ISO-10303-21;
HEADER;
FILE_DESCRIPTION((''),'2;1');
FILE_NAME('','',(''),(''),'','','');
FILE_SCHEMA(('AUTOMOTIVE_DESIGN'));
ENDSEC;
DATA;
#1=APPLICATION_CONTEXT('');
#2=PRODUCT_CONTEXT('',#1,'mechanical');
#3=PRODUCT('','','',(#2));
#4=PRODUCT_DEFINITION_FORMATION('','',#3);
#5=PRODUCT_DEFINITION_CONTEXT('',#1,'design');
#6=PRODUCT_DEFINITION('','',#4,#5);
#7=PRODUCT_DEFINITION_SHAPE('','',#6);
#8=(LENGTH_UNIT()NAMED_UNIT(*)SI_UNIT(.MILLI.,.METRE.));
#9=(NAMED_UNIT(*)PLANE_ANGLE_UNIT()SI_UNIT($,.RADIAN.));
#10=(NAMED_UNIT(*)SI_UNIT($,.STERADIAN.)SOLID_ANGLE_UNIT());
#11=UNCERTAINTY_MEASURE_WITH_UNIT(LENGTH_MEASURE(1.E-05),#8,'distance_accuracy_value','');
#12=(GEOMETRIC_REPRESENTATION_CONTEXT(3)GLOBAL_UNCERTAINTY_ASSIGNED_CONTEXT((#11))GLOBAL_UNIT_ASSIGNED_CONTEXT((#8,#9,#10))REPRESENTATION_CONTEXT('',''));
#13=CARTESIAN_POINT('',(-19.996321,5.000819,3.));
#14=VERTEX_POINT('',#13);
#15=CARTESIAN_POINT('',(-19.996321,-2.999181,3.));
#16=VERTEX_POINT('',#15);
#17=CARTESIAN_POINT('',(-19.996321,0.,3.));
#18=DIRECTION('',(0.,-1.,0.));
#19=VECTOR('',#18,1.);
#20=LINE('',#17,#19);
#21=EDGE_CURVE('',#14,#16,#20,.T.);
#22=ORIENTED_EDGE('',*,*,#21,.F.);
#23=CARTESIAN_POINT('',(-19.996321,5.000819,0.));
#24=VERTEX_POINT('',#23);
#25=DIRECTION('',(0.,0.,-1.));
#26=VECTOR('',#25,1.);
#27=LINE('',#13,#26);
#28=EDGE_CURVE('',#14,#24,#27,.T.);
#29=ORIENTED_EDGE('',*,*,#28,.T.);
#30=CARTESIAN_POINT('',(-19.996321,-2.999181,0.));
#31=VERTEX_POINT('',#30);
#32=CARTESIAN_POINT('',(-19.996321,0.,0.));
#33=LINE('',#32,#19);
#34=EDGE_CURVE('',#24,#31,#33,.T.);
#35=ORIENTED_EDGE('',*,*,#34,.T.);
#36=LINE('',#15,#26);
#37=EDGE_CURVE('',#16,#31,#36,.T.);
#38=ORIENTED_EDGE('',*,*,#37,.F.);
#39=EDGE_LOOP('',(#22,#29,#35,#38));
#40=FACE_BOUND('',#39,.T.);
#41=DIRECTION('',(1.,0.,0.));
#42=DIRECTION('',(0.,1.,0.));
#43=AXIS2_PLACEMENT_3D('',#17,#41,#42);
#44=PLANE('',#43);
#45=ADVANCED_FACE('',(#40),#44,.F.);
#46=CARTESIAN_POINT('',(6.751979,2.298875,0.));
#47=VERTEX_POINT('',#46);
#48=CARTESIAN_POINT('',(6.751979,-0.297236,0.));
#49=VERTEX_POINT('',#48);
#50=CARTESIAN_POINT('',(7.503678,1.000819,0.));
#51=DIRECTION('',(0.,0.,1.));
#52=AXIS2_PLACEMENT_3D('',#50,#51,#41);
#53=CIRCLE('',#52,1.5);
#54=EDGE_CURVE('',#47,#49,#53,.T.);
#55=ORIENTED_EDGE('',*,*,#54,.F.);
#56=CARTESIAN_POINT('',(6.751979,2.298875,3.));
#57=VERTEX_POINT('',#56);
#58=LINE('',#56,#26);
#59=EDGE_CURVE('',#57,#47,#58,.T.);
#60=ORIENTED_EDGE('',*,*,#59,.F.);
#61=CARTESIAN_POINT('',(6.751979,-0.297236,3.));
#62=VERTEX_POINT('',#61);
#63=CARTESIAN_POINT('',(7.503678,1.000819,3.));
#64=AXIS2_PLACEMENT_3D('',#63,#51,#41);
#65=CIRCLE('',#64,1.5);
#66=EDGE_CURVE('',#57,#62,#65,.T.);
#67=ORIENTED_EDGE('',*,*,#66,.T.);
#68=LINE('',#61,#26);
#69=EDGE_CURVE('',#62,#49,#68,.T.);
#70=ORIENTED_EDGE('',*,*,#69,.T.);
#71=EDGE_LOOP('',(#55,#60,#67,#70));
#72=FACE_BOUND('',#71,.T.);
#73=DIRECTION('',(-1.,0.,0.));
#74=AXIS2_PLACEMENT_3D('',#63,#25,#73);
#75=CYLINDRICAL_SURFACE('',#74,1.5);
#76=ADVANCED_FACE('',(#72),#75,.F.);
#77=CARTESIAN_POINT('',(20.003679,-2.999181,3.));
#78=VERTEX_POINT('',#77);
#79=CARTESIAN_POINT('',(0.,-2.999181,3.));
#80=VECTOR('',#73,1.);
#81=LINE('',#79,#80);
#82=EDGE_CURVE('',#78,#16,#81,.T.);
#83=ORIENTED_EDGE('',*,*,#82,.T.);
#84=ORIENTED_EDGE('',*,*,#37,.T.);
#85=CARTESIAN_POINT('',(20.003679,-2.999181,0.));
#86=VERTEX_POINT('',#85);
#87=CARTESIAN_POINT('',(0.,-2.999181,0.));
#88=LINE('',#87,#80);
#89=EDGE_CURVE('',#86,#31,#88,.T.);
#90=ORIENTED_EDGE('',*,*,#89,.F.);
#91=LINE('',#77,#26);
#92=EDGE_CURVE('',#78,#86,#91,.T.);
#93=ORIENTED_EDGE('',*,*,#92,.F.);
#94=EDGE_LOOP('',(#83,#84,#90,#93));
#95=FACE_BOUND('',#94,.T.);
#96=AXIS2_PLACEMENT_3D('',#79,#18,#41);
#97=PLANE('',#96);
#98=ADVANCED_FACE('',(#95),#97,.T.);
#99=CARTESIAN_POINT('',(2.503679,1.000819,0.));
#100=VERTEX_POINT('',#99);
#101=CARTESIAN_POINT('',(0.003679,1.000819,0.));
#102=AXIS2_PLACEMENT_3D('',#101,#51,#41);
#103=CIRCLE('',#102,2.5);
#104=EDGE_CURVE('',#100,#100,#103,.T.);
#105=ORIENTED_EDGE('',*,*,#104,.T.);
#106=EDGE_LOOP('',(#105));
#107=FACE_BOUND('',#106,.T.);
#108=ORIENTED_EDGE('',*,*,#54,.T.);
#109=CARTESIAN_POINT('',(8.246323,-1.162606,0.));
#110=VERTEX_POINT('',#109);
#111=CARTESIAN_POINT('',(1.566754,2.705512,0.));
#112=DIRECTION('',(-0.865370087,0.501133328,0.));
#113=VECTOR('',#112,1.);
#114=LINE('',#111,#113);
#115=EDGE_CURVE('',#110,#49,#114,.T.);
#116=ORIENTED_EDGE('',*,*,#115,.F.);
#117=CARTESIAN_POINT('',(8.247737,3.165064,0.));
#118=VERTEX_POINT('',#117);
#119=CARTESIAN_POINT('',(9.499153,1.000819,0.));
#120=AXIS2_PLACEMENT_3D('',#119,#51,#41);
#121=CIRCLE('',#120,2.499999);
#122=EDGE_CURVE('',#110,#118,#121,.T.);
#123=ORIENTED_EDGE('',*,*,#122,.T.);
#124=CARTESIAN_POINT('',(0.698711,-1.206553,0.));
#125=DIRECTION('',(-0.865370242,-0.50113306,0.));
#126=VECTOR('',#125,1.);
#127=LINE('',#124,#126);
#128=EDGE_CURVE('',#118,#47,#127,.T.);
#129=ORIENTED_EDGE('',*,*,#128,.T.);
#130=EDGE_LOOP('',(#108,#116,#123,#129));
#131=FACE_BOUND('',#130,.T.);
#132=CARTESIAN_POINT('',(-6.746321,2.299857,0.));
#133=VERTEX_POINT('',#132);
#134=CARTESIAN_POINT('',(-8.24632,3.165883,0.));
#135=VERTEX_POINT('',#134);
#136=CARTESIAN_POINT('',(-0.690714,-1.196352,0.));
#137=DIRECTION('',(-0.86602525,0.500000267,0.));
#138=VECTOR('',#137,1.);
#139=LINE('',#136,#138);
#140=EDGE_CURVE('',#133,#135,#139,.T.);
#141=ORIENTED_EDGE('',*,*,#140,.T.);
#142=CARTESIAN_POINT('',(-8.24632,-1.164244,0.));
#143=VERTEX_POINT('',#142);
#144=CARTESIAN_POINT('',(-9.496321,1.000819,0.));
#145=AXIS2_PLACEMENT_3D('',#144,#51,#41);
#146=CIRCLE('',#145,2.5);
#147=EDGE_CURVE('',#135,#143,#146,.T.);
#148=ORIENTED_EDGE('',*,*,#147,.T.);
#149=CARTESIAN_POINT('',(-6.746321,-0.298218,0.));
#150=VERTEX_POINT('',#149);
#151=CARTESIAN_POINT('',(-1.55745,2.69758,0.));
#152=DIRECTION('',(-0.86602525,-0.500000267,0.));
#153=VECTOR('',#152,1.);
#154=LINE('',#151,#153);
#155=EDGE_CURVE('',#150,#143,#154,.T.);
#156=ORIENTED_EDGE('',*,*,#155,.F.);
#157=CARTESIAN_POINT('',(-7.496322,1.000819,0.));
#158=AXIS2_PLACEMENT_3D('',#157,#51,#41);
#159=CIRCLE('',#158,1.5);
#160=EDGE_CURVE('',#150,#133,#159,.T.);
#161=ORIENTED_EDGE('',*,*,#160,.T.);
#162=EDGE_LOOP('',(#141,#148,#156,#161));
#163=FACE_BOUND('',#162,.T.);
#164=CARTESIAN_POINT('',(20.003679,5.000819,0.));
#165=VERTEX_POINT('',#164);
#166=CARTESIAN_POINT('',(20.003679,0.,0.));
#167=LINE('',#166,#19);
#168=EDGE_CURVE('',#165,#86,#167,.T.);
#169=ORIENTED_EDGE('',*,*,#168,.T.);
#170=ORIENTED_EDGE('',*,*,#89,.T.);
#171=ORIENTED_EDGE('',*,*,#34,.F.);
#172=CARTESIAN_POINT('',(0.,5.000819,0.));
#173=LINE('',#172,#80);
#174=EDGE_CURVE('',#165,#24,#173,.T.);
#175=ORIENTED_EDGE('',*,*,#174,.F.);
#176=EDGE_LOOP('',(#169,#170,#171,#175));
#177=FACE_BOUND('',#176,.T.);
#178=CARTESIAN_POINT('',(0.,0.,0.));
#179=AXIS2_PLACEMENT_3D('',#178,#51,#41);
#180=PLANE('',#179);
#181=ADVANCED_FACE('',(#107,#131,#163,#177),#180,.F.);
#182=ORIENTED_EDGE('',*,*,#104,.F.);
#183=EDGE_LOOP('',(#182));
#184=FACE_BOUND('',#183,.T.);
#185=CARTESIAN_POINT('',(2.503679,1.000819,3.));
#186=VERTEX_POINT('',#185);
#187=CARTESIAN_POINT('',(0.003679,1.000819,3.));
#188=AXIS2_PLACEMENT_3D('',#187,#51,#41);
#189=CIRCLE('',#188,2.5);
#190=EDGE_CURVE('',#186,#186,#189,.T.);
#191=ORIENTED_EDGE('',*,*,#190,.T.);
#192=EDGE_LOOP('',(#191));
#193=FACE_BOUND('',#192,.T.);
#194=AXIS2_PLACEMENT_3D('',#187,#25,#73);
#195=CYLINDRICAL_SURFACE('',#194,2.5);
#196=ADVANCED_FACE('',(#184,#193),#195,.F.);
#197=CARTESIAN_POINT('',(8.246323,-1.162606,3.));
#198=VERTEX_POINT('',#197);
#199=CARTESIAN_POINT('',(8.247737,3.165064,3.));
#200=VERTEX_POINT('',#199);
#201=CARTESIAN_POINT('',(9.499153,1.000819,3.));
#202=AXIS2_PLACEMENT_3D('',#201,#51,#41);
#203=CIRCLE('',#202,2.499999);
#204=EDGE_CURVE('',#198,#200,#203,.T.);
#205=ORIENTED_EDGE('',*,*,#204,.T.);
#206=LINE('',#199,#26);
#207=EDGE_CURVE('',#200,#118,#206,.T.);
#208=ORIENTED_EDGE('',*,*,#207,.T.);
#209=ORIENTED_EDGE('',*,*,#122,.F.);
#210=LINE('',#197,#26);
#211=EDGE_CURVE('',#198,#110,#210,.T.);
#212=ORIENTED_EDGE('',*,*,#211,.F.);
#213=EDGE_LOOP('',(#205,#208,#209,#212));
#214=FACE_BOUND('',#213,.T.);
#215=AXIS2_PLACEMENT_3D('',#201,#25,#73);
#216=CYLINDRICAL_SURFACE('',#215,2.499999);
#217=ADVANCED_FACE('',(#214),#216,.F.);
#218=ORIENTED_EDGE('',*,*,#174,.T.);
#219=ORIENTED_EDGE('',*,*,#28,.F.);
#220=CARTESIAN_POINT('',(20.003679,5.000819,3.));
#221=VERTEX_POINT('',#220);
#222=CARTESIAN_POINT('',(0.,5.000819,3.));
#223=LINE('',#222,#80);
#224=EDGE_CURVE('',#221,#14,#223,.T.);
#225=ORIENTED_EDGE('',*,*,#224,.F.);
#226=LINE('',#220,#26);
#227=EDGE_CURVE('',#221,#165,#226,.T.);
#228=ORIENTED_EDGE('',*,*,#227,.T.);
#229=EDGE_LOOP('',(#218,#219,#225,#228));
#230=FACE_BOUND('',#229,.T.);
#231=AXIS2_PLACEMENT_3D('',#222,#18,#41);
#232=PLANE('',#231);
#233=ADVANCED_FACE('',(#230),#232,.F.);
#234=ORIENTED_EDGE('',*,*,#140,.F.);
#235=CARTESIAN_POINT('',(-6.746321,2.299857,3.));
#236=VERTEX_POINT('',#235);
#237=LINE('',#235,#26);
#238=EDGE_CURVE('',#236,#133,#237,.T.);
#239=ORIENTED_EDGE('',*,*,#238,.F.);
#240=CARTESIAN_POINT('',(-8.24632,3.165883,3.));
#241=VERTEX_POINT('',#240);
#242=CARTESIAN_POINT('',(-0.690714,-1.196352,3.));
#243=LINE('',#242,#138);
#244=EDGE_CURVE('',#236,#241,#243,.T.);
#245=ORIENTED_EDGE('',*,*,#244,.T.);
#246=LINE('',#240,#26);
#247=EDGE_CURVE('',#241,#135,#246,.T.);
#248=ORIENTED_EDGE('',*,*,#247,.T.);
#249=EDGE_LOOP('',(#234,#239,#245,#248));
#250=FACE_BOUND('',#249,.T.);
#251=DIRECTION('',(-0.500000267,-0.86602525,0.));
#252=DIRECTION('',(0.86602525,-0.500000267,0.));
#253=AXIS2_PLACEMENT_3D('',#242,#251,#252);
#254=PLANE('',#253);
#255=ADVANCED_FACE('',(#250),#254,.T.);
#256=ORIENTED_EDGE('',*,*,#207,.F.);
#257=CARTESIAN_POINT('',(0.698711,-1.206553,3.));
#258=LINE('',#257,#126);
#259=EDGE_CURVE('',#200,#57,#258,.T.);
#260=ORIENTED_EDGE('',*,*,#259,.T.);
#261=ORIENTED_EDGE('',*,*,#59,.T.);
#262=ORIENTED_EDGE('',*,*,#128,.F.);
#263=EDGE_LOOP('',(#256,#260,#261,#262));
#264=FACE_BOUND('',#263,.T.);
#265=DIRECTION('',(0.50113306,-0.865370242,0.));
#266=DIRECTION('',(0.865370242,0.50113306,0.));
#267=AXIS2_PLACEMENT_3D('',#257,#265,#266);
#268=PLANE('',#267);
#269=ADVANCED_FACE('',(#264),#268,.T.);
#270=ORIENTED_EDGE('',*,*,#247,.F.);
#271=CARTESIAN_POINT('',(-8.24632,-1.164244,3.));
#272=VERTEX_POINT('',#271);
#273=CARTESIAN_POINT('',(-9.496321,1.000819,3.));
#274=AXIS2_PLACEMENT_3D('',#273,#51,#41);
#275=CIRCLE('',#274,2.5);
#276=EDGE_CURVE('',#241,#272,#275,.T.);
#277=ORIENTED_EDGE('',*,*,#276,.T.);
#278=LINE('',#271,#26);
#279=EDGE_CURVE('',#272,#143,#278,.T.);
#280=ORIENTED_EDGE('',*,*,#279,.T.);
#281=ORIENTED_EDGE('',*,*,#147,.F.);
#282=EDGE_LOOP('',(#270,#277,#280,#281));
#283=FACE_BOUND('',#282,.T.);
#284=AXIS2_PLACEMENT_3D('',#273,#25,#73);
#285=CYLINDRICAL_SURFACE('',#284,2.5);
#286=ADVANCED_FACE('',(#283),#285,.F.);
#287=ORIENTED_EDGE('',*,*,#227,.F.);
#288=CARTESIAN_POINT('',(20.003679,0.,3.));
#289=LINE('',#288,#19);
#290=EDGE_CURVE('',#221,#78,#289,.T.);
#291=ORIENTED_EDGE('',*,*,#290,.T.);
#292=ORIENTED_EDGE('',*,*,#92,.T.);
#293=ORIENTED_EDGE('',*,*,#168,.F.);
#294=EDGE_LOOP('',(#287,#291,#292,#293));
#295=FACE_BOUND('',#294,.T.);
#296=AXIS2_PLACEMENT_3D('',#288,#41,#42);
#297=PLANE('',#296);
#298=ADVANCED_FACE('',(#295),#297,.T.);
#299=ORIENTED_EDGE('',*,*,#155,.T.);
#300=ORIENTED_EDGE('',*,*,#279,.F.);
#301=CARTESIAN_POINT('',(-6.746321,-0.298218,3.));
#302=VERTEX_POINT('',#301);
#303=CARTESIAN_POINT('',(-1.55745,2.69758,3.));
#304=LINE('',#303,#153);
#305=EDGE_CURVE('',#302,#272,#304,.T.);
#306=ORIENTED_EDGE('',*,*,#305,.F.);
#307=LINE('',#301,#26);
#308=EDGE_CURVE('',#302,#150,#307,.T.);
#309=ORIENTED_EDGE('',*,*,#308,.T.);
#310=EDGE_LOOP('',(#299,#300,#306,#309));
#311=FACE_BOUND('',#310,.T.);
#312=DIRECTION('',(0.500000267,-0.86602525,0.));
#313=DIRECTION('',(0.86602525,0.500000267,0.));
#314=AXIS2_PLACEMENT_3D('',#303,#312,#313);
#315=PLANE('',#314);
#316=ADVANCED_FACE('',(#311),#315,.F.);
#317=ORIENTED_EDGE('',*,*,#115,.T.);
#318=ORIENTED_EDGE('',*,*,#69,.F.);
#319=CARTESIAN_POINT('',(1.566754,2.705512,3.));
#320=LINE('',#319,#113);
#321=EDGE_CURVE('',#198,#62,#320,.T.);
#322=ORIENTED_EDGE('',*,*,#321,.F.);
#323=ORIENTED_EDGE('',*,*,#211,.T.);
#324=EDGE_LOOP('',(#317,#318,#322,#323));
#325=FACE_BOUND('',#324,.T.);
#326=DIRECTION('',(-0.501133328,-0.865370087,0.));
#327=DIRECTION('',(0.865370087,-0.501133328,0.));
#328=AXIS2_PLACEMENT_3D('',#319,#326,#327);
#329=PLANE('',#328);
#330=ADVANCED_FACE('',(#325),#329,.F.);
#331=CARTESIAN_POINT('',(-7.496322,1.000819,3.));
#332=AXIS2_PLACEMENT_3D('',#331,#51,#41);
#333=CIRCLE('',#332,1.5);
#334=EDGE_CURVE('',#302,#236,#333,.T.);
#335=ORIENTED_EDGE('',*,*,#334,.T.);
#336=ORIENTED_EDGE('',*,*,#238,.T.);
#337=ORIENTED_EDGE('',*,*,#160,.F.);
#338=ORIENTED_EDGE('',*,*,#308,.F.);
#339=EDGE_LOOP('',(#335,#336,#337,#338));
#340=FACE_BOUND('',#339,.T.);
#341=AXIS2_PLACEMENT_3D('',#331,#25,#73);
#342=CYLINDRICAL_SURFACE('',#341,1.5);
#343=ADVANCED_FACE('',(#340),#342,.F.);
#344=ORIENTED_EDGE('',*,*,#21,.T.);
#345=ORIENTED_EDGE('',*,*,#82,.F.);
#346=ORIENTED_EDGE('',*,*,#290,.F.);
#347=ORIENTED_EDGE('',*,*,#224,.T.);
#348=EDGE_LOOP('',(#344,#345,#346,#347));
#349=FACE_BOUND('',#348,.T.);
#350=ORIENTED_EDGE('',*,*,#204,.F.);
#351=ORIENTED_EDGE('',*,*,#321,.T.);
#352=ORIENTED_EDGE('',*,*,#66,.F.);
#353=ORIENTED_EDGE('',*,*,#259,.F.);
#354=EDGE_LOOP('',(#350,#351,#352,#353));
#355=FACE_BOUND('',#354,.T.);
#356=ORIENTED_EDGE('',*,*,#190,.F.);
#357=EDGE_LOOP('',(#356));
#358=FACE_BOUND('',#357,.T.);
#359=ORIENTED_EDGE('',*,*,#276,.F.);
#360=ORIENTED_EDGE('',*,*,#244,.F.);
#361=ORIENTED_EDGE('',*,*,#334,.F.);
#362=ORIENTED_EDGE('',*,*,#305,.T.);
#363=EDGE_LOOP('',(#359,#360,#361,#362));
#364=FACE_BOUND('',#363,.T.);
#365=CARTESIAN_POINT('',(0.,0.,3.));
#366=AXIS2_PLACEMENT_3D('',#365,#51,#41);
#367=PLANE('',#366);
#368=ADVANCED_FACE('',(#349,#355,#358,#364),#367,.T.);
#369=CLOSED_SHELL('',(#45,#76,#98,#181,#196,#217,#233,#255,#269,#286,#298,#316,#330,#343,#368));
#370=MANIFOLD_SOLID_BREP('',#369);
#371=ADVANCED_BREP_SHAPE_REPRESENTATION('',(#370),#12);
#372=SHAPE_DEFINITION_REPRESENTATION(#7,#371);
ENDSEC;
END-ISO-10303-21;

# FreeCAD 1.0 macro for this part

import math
import FreeCAD as App
import Part
import Sketcher
Q = App.Units.Quantity


def add_polygon(sketch, points):
    """Adds a closed chain of lines whose ends are joined by coincident constraints."""
    first, n = sketch.GeometryCount, len(points)
    for a, b in zip(points, points[1:] + points[:1]):
        sketch.addGeometry(Part.LineSegment(App.Vector(*a, 0), App.Vector(*b, 0)), False)
    for i in range(n):
        sketch.addConstraint(Sketcher.Constraint("Coincident", first + i, 2, first + (i + 1) % n, 1))

doc = App.newDocument("Part")
body = doc.addObject("PartDesign::Body", "Body")

sketch1 = body.newObject("Sketcher::SketchObject", "Sketch")
sketch1.AttachmentSupport = (doc.getObject("XY_Plane"), [""])
sketch1.MapMode = "FlatFace"
add_polygon(sketch1, [(-19.9963, 5.0008), (-19.9963, -2.9992), (20.0037, -2.9992), (20.0037, 5.0008)])
sketch1.addGeometry(Part.LineSegment(App.Vector(6.752, 2.2989, 0), App.Vector(8.2449, 3.1634, 0)), False)
sketch1.addGeometry(Part.LineSegment(App.Vector(8.2449, 3.1634, 0), App.Vector(8.2477, 3.1651, 0)), False)
sketch1.addGeometry(Part.ArcOfCircle(Part.Circle(App.Vector(9.4992, 1.0008, 0), App.Vector(0, 0, 1), 2.5), math.radians(6), math.radians(120)), False)
sketch1.addGeometry(Part.ArcOfCircle(Part.Circle(App.Vector(9.4992, 1.0008, 0), App.Vector(0, 0, 1), 2.5), math.radians(-5.74), math.radians(5.74)), False)
sketch1.addGeometry(Part.ArcOfCircle(Part.Circle(App.Vector(9.4992, 1.0008, 0), App.Vector(0, 0, 1), 2.5), math.radians(-120), math.radians(-6)), False)
sketch1.addGeometry(Part.LineSegment(App.Vector(8.2463, -1.1626, 0), App.Vector(6.752, -0.2972, 0)), False)
sketch1.addGeometry(Part.ArcOfCircle(Part.Circle(App.Vector(7.5037, 1.0008, 0), App.Vector(0, 0, 1), 1.5), math.radians(120), math.radians(240)), False)
sketch1.addGeometry(Part.ArcOfCircle(Part.Circle(App.Vector(-9.4963, 1.0008, 0), App.Vector(0, 0, 1), 2.5), math.radians(60), math.radians(174)), False)
sketch1.addGeometry(Part.LineSegment(App.Vector(-8.2463, 3.1659, 0), App.Vector(-6.7463, 2.2999, 0)), False)
sketch1.addGeometry(Part.ArcOfCircle(Part.Circle(App.Vector(-7.4963, 1.0008, 0), App.Vector(0, 0, 1), 1.5), math.radians(-60), math.radians(60)), False)
sketch1.addGeometry(Part.LineSegment(App.Vector(-6.7463, -0.2982, 0), App.Vector(-8.2463, -1.1642, 0)), False)
sketch1.addGeometry(Part.ArcOfCircle(Part.Circle(App.Vector(-9.4963, 1.0008, 0), App.Vector(0, 0, 1), 2.5), math.radians(-174), math.radians(-60)), False)
sketch1.addGeometry(Part.ArcOfCircle(Part.Circle(App.Vector(-9.4963, 1.0008, 0), App.Vector(0, 0, 1), 2.5), math.radians(174.26), math.radians(185.74)), False)
sketch1.addGeometry(Part.Circle(App.Vector(0.0037, 1.0008, 0), App.Vector(0, 0, 1), 2.5), False)
sketch1.addConstraint([
    Sketcher.Constraint("Coincident", 4, 2, 5, 1),
    Sketcher.Constraint("Coincident", 5, 2, 6, 2),
    Sketcher.Constraint("Tangent", 6, 1, 7, 2),
    Sketcher.Constraint("Tangent", 7, 1, 8, 2),
    Sketcher.Constraint("Tangent", 8, 1, 9, 1),
    Sketcher.Constraint("Tangent", 9, 2, 10, 2),
    Sketcher.Constraint("Tangent", 10, 1, 4, 1),
    Sketcher.Constraint("Tangent", 11, 1, 12, 1),
    Sketcher.Constraint("Tangent", 12, 2, 13, 2),
    Sketcher.Constraint("Tangent", 13, 1, 14, 1),
    Sketcher.Constraint("Tangent", 14, 2, 15, 2),
    Sketcher.Constraint("Tangent", 15, 1, 16, 2),
    Sketcher.Constraint("Tangent", 16, 1, 11, 2),
    Sketcher.Constraint("Vertical", 0),
    Sketcher.Constraint("Horizontal", 1),
    Sketcher.Constraint("Vertical", 2),
    Sketcher.Constraint("Horizontal", 3),
    Sketcher.Constraint("Coincident", 8, 3, 6, 3),
    Sketcher.Constraint("Coincident", 15, 3, 11, 3),
    Sketcher.Constraint("Equal", 8, 11),
    Sketcher.Constraint("Equal", 10, 13),
    Sketcher.Constraint("Equal", 16, 17),
    Sketcher.Constraint("Parallel", 4, 5),
    Sketcher.Constraint("Horizontal", 8, 3, 10, 3),
    Sketcher.Constraint("Horizontal", 10, 3, 11, 3),
    Sketcher.Constraint("Horizontal", 11, 3, 13, 3),
    Sketcher.Constraint("Horizontal", 16, 3, 17, 3),
    Sketcher.Constraint("Horizontal", 7, 1, 15, 1),
    Sketcher.Constraint("Horizontal", 6, 1, 16, 1),
    Sketcher.Constraint("Vertical", 6, 1, 7, 1),
    Sketcher.Constraint("Diameter", 17, 5.0),
    Sketcher.Constraint("Radius", 10, 1.5),
    Sketcher.Constraint("DistanceX", 1, 1, 1, 2, 40.0),
    Sketcher.Constraint("DistanceY", 0, 2, 0, 1, 8.0),
    Sketcher.Constraint("Angle", 12, Q("-30.000018 deg")),
    Sketcher.Constraint("DistanceX", 11, 3, 10, 3, 16.999999),
    Sketcher.Constraint("DistanceY", 0, 2, 11, 3, 4.0),
    Sketcher.Constraint("DistanceX", 0, 2, 17, 3, 20.0),
    Sketcher.Constraint("DistanceX", 17, 3, 10, 3, 7.499999),
    Sketcher.Constraint("DistanceY", 7, 1, 6, 1, 0.5),
    Sketcher.Constraint("DistanceX", 9, 2, 10, 3, 0.7517),
    Sketcher.Constraint("Distance", 4, 1.725188),
    Sketcher.Constraint("DistanceY", -1, 1, 6, 3, 1.000819),
    Sketcher.Constraint("DistanceX", -1, 1, 7, 3, 9.499152),
    Sketcher.Constraint("DistanceX", 4, 2, 5, 2, 0.002832),
])
pad1 = body.newObject("PartDesign::Pad", "Pad")
pad1.Profile = sketch1
pad1.Length = 3

doc.recompute()
